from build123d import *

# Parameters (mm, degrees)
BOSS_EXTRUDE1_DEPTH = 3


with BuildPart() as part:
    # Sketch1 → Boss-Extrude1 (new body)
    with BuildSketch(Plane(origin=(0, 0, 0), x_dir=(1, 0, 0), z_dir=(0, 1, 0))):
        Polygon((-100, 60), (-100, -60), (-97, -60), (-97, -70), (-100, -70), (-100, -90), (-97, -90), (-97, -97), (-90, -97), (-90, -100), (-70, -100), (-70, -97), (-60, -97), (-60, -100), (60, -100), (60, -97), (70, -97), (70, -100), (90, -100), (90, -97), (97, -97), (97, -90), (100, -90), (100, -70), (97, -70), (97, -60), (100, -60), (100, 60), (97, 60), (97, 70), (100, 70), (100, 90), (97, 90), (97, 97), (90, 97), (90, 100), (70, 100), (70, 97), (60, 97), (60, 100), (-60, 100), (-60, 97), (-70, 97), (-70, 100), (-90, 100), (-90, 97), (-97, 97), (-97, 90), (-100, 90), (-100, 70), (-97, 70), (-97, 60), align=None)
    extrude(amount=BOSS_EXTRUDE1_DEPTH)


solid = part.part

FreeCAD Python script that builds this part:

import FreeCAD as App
import Part
import Sketcher
from FreeCAD import Vector

doc = App.newDocument("Part")
body = doc.addObject("PartDesign::Body", "Body")

# Sketch on XZ plane
sketch1 = body.newObject("Sketcher::SketchObject", "Sketch")
sketch1.AttachmentSupport = (doc.getObject("XZ_Plane"), [""])
sketch1.MapMode = "FlatFace"
sketch1.addGeometry(Part.LineSegment(Vector(-100, -60, 0), Vector(-100, 60, 0)), False)
sketch1.addGeometry(Part.LineSegment(Vector(-100, 60, 0), Vector(-97, 60, 0)), False)
sketch1.addGeometry(Part.LineSegment(Vector(-97, 60, 0), Vector(-97, 70, 0)), False)
sketch1.addGeometry(Part.LineSegment(Vector(-97, 70, 0), Vector(-100, 70, 0)), False)
sketch1.addGeometry(Part.LineSegment(Vector(-100, 70, 0), Vector(-100, 90, 0)), False)
sketch1.addGeometry(Part.LineSegment(Vector(-100, 90, 0), Vector(-97, 90, 0)), False)
sketch1.addGeometry(Part.LineSegment(Vector(-97, 90, 0), Vector(-97, 97, 0)), False)
sketch1.addGeometry(Part.LineSegment(Vector(-97, 97, 0), Vector(-90, 97, 0)), False)
sketch1.addGeometry(Part.LineSegment(Vector(-90, 97, 0), Vector(-90, 100, 0)), False)
sketch1.addGeometry(Part.LineSegment(Vector(-90, 100, 0), Vector(-70, 100, 0)), False)
sketch1.addGeometry(Part.LineSegment(Vector(-70, 100, 0), Vector(-70, 97, 0)), False)
sketch1.addGeometry(Part.LineSegment(Vector(-70, 97, 0), Vector(-60, 97, 0)), False)
sketch1.addGeometry(Part.LineSegment(Vector(-60, 97, 0), Vector(-60, 100, 0)), False)
sketch1.addGeometry(Part.LineSegment(Vector(-60, 100, 0), Vector(60, 100, 0)), False)
sketch1.addGeometry(Part.LineSegment(Vector(60, 100, 0), Vector(60, 97, 0)), False)
sketch1.addGeometry(Part.LineSegment(Vector(60, 97, 0), Vector(70, 97, 0)), False)
sketch1.addGeometry(Part.LineSegment(Vector(70, 97, 0), Vector(70, 100, 0)), False)
sketch1.addGeometry(Part.LineSegment(Vector(70, 100, 0), Vector(90, 100, 0)), False)
sketch1.addGeometry(Part.LineSegment(Vector(90, 100, 0), Vector(90, 97, 0)), False)
sketch1.addGeometry(Part.LineSegment(Vector(90, 97, 0), Vector(97, 97, 0)), False)
sketch1.addGeometry(Part.LineSegment(Vector(97, 97, 0), Vector(97, 90, 0)), False)
sketch1.addGeometry(Part.LineSegment(Vector(97, 90, 0), Vector(100, 90, 0)), False)
sketch1.addGeometry(Part.LineSegment(Vector(100, 90, 0), Vector(100, 70, 0)), False)
sketch1.addGeometry(Part.LineSegment(Vector(100, 70, 0), Vector(97, 70, 0)), False)
sketch1.addGeometry(Part.LineSegment(Vector(97, 70, 0), Vector(97, 60, 0)), False)
sketch1.addGeometry(Part.LineSegment(Vector(97, 60, 0), Vector(100, 60, 0)), False)
sketch1.addGeometry(Part.LineSegment(Vector(100, 60, 0), Vector(100, -60, 0)), False)
sketch1.addGeometry(Part.LineSegment(Vector(100, -60, 0), Vector(97, -60, 0)), False)
sketch1.addGeometry(Part.LineSegment(Vector(97, -60, 0), Vector(97, -70, 0)), False)
sketch1.addGeometry(Part.LineSegment(Vector(97, -70, 0), Vector(100, -70, 0)), False)
sketch1.addGeometry(Part.LineSegment(Vector(100, -70, 0), Vector(100, -90, 0)), False)
sketch1.addGeometry(Part.LineSegment(Vector(100, -90, 0), Vector(97, -90, 0)), False)
sketch1.addGeometry(Part.LineSegment(Vector(97, -90, 0), Vector(97, -97, 0)), False)
sketch1.addGeometry(Part.LineSegment(Vector(97, -97, 0), Vector(90, -97, 0)), False)
sketch1.addGeometry(Part.LineSegment(Vector(90, -97, 0), Vector(90, -100, 0)), False)
sketch1.addGeometry(Part.LineSegment(Vector(90, -100, 0), Vector(70, -100, 0)), False)
sketch1.addGeometry(Part.LineSegment(Vector(70, -100, 0), Vector(70, -97, 0)), False)
sketch1.addGeometry(Part.LineSegment(Vector(70, -97, 0), Vector(60, -97, 0)), False)
sketch1.addGeometry(Part.LineSegment(Vector(60, -97, 0), Vector(60, -100, 0)), False)
sketch1.addGeometry(Part.LineSegment(Vector(60, -100, 0), Vector(-60, -100, 0)), False)
sketch1.addGeometry(Part.LineSegment(Vector(-60, -100, 0), Vector(-60, -97, 0)), False)
sketch1.addGeometry(Part.LineSegment(Vector(-60, -97, 0), Vector(-70, -97, 0)), False)
sketch1.addGeometry(Part.LineSegment(Vector(-70, -97, 0), Vector(-70, -100, 0)), False)
sketch1.addGeometry(Part.LineSegment(Vector(-70, -100, 0), Vector(-90, -100, 0)), False)
sketch1.addGeometry(Part.LineSegment(Vector(-90, -100, 0), Vector(-90, -97, 0)), False)
sketch1.addGeometry(Part.LineSegment(Vector(-90, -97, 0), Vector(-97, -97, 0)), False)
sketch1.addGeometry(Part.LineSegment(Vector(-97, -97, 0), Vector(-97, -90, 0)), False)
sketch1.addGeometry(Part.LineSegment(Vector(-97, -90, 0), Vector(-100, -90, 0)), False)
sketch1.addGeometry(Part.LineSegment(Vector(-100, -90, 0), Vector(-100, -70, 0)), False)
sketch1.addGeometry(Part.LineSegment(Vector(-100, -70, 0), Vector(-97, -70, 0)), False)
sketch1.addGeometry(Part.LineSegment(Vector(-97, -70, 0), Vector(-97, -60, 0)), False)
sketch1.addGeometry(Part.LineSegment(Vector(-97, -60, 0), Vector(-100, -60, 0)), False)
sketch1.addConstraint(Sketcher.Constraint("Coincident", 0, 2, 1, 1))
sketch1.addConstraint(Sketcher.Constraint("Coincident", 1, 2, 2, 1))
sketch1.addConstraint(Sketcher.Constraint("Coincident", 2, 2, 3, 1))
sketch1.addConstraint(Sketcher.Constraint("Coincident", 3, 2, 4, 1))
sketch1.addConstraint(Sketcher.Constraint("Coincident", 4, 2, 5, 1))
sketch1.addConstraint(Sketcher.Constraint("Coincident", 5, 2, 6, 1))
sketch1.addConstraint(Sketcher.Constraint("Coincident", 6, 2, 7, 1))
sketch1.addConstraint(Sketcher.Constraint("Coincident", 7, 2, 8, 1))
sketch1.addConstraint(Sketcher.Constraint("Coincident", 8, 2, 9, 1))
sketch1.addConstraint(Sketcher.Constraint("Coincident", 9, 2, 10, 1))
sketch1.addConstraint(Sketcher.Constraint("Coincident", 10, 2, 11, 1))
sketch1.addConstraint(Sketcher.Constraint("Coincident", 11, 2, 12, 1))
sketch1.addConstraint(Sketcher.Constraint("Coincident", 12, 2, 13, 1))
sketch1.addConstraint(Sketcher.Constraint("Coincident", 13, 2, 14, 1))
sketch1.addConstraint(Sketcher.Constraint("Coincident", 14, 2, 15, 1))
sketch1.addConstraint(Sketcher.Constraint("Coincident", 15, 2, 16, 1))
sketch1.addConstraint(Sketcher.Constraint("Coincident", 16, 2, 17, 1))
sketch1.addConstraint(Sketcher.Constraint("Coincident", 17, 2, 18, 1))
sketch1.addConstraint(Sketcher.Constraint("Coincident", 18, 2, 19, 1))
sketch1.addConstraint(Sketcher.Constraint("Coincident", 19, 2, 20, 1))
sketch1.addConstraint(Sketcher.Constraint("Coincident", 20, 2, 21, 1))
sketch1.addConstraint(Sketcher.Constraint("Coincident", 21, 2, 22, 1))
sketch1.addConstraint(Sketcher.Constraint("Coincident", 22, 2, 23, 1))
sketch1.addConstraint(Sketcher.Constraint("Coincident", 23, 2, 24, 1))
sketch1.addConstraint(Sketcher.Constraint("Coincident", 24, 2, 25, 1))
sketch1.addConstraint(Sketcher.Constraint("Coincident", 25, 2, 26, 1))
sketch1.addConstraint(Sketcher.Constraint("Coincident", 26, 2, 27, 1))
sketch1.addConstraint(Sketcher.Constraint("Coincident", 27, 2, 28, 1))
sketch1.addConstraint(Sketcher.Constraint("Coincident", 28, 2, 29, 1))
sketch1.addConstraint(Sketcher.Constraint("Coincident", 29, 2, 30, 1))
sketch1.addConstraint(Sketcher.Constraint("Coincident", 30, 2, 31, 1))
sketch1.addConstraint(Sketcher.Constraint("Coincident", 31, 2, 32, 1))
sketch1.addConstraint(Sketcher.Constraint("Coincident", 32, 2, 33, 1))
sketch1.addConstraint(Sketcher.Constraint("Coincident", 33, 2, 34, 1))
sketch1.addConstraint(Sketcher.Constraint("Coincident", 34, 2, 35, 1))
sketch1.addConstraint(Sketcher.Constraint("Coincident", 35, 2, 36, 1))
sketch1.addConstraint(Sketcher.Constraint("Coincident", 36, 2, 37, 1))
sketch1.addConstraint(Sketcher.Constraint("Coincident", 37, 2, 38, 1))
sketch1.addConstraint(Sketcher.Constraint("Coincident", 38, 2, 39, 1))
sketch1.addConstraint(Sketcher.Constraint("Coincident", 39, 2, 40, 1))
sketch1.addConstraint(Sketcher.Constraint("Coincident", 40, 2, 41, 1))
sketch1.addConstraint(Sketcher.Constraint("Coincident", 41, 2, 42, 1))
sketch1.addConstraint(Sketcher.Constraint("Coincident", 42, 2, 43, 1))
sketch1.addConstraint(Sketcher.Constraint("Coincident", 43, 2, 44, 1))
sketch1.addConstraint(Sketcher.Constraint("Coincident", 44, 2, 45, 1))
sketch1.addConstraint(Sketcher.Constraint("Coincident", 45, 2, 46, 1))
sketch1.addConstraint(Sketcher.Constraint("Coincident", 46, 2, 47, 1))
sketch1.addConstraint(Sketcher.Constraint("Coincident", 47, 2, 48, 1))
sketch1.addConstraint(Sketcher.Constraint("Coincident", 48, 2, 49, 1))
sketch1.addConstraint(Sketcher.Constraint("Coincident", 49, 2, 50, 1))
sketch1.addConstraint(Sketcher.Constraint("Coincident", 50, 2, 51, 1))
sketch1.addConstraint(Sketcher.Constraint("Coincident", 51, 2, 0, 1))
sketch1.addConstraint(Sketcher.Constraint("Vertical", 0))
sketch1.addConstraint(Sketcher.Constraint("Horizontal", 1))
sketch1.addConstraint(Sketcher.Constraint("Vertical", 2))
sketch1.addConstraint(Sketcher.Constraint("Horizontal", 3))
sketch1.addConstraint(Sketcher.Constraint("Vertical", 4))
sketch1.addConstraint(Sketcher.Constraint("Horizontal", 5))
sketch1.addConstraint(Sketcher.Constraint("Vertical", 6))
sketch1.addConstraint(Sketcher.Constraint("Horizontal", 7))
sketch1.addConstraint(Sketcher.Constraint("Vertical", 8))
sketch1.addConstraint(Sketcher.Constraint("Horizontal", 9))
sketch1.addConstraint(Sketcher.Constraint("Vertical", 10))
sketch1.addConstraint(Sketcher.Constraint("Horizontal", 11))
sketch1.addConstraint(Sketcher.Constraint("Vertical", 12))
sketch1.addConstraint(Sketcher.Constraint("Horizontal", 13))
sketch1.addConstraint(Sketcher.Constraint("Vertical", 14))
sketch1.addConstraint(Sketcher.Constraint("Horizontal", 15))
sketch1.addConstraint(Sketcher.Constraint("Vertical", 16))
sketch1.addConstraint(Sketcher.Constraint("Horizontal", 17))
sketch1.addConstraint(Sketcher.Constraint("Vertical", 18))
sketch1.addConstraint(Sketcher.Constraint("Horizontal", 19))
sketch1.addConstraint(Sketcher.Constraint("Vertical", 20))
sketch1.addConstraint(Sketcher.Constraint("Horizontal", 21))
sketch1.addConstraint(Sketcher.Constraint("Vertical", 22))
sketch1.addConstraint(Sketcher.Constraint("Horizontal", 23))
sketch1.addConstraint(Sketcher.Constraint("Vertical", 24))
sketch1.addConstraint(Sketcher.Constraint("Horizontal", 25))
sketch1.addConstraint(Sketcher.Constraint("Vertical", 26))
sketch1.addConstraint(Sketcher.Constraint("Horizontal", 27))
sketch1.addConstraint(Sketcher.Constraint("Vertical", 28))
sketch1.addConstraint(Sketcher.Constraint("Horizontal", 29))
sketch1.addConstraint(Sketcher.Constraint("Vertical", 30))
sketch1.addConstraint(Sketcher.Constraint("Horizontal", 31))
sketch1.addConstraint(Sketcher.Constraint("Vertical", 32))
sketch1.addConstraint(Sketcher.Constraint("Horizontal", 33))
sketch1.addConstraint(Sketcher.Constraint("Vertical", 34))
sketch1.addConstraint(Sketcher.Constraint("Horizontal", 35))
sketch1.addConstraint(Sketcher.Constraint("Vertical", 36))
sketch1.addConstraint(Sketcher.Constraint("Horizontal", 37))
sketch1.addConstraint(Sketcher.Constraint("Vertical", 38))
sketch1.addConstraint(Sketcher.Constraint("Horizontal", 39))
sketch1.addConstraint(Sketcher.Constraint("Vertical", 40))
sketch1.addConstraint(Sketcher.Constraint("Horizontal", 41))
sketch1.addConstraint(Sketcher.Constraint("Vertical", 42))
sketch1.addConstraint(Sketcher.Constraint("Horizontal", 43))
sketch1.addConstraint(Sketcher.Constraint("Vertical", 44))
sketch1.addConstraint(Sketcher.Constraint("Horizontal", 45))
sketch1.addConstraint(Sketcher.Constraint("Vertical", 46))
sketch1.addConstraint(Sketcher.Constraint("Horizontal", 47))
sketch1.addConstraint(Sketcher.Constraint("Vertical", 48))
sketch1.addConstraint(Sketcher.Constraint("Horizontal", 49))
sketch1.addConstraint(Sketcher.Constraint("Vertical", 50))
sketch1.addConstraint(Sketcher.Constraint("Horizontal", 51))
sketch1.addConstraint(Sketcher.Constraint("Symmetric", 0, 2, 26, 2, -1, 1))
sketch1.addConstraint(Sketcher.Constraint("Symmetric", 2, 2, 28, 2, -1, 1))
sketch1.addConstraint(Sketcher.Constraint("Symmetric", 4, 2, 30, 2, -1, 1))
sketch1.addConstraint(Sketcher.Constraint("Symmetric", 6, 2, 32, 2, -1, 1))
sketch1.addConstraint(Sketcher.Constraint("Symmetric", 8, 2, 34, 2, -1, 1))
sketch1.addConstraint(Sketcher.Constraint("Symmetric", 10, 2, 36, 2, -1, 1))
sketch1.addConstraint(Sketcher.Constraint("Symmetric", 12, 2, 38, 2, -1, 1))
sketch1.addConstraint(Sketcher.Constraint("Symmetric", 14, 2, 40, 2, -1, 1))
sketch1.addConstraint(Sketcher.Constraint("Symmetric", 16, 2, 42, 2, -1, 1))
sketch1.addConstraint(Sketcher.Constraint("Symmetric", 18, 2, 44, 2, -1, 1))
sketch1.addConstraint(Sketcher.Constraint("Symmetric", 20, 2, 46, 2, -1, 1))
sketch1.addConstraint(Sketcher.Constraint("Symmetric", 22, 2, 48, 2, -1, 1))
sketch1.addConstraint(Sketcher.Constraint("Symmetric", 24, 2, 50, 2, -1, 1))
sketch1.addConstraint(Sketcher.Constraint("Symmetric", 11, 2, 14, 2, -2))
sketch1.addConstraint(Sketcher.Constraint("Symmetric", 9, 2, 16, 2, -2))
sketch1.addConstraint(Sketcher.Constraint("Symmetric", 7, 2, 18, 2, -2))
sketch1.addConstraint(Sketcher.Constraint("Symmetric", 5, 2, 20, 2, -2))
sketch1.addConstraint(Sketcher.Constraint("Symmetric", 3, 2, 22, 2, -2))
sketch1.addConstraint(Sketcher.Constraint("Symmetric", 1, 2, 24, 2, -2))
sketch1.addConstraint(Sketcher.Constraint("Horizontal", 7, 2, 10, 2))
sketch1.addConstraint(Sketcher.Constraint("Horizontal", 9, 2, 12, 2))
sketch1.addConstraint(Sketcher.Constraint("Vertical", 0, 2, 3, 2))
sketch1.addConstraint(Sketcher.Constraint("Vertical", 2, 2, 5, 2))
sketch1.addConstraint(Sketcher.Constraint("Equal", 39, 0))
sketch1.addConstraint(Sketcher.Constraint("Equal", 41, 2))
sketch1.addConstraint(Sketcher.Constraint("Equal", 43, 4))
sketch1.addConstraint(Sketcher.Constraint("Equal", 45, 6))
sketch1.addConstraint(Sketcher.Constraint("Equal", 51, 8))
sketch1.addConstraint(Sketcher.Constraint("DistanceX", 1, 1, 1, 2, 3.0))
sketch1.addConstraint(Sketcher.Constraint("DistanceX", 7, 1, 7, 2, 7.0))
sketch1.addConstraint(Sketcher.Constraint("DistanceX", 9, 1, 9, 2, 20.0))
sketch1.addConstraint(Sketcher.Constraint("DistanceX", 11, 1, 11, 2, 10.0))
sketch1.addConstraint(Sketcher.Constraint("DistanceX", 13, 1, 13, 2, 120.0))
pad1 = body.newObject("PartDesign::Pad", "Pad")
pad1.Profile = sketch1
pad1.Length = 3
pad1.Reversed = True

doc.recompute()
